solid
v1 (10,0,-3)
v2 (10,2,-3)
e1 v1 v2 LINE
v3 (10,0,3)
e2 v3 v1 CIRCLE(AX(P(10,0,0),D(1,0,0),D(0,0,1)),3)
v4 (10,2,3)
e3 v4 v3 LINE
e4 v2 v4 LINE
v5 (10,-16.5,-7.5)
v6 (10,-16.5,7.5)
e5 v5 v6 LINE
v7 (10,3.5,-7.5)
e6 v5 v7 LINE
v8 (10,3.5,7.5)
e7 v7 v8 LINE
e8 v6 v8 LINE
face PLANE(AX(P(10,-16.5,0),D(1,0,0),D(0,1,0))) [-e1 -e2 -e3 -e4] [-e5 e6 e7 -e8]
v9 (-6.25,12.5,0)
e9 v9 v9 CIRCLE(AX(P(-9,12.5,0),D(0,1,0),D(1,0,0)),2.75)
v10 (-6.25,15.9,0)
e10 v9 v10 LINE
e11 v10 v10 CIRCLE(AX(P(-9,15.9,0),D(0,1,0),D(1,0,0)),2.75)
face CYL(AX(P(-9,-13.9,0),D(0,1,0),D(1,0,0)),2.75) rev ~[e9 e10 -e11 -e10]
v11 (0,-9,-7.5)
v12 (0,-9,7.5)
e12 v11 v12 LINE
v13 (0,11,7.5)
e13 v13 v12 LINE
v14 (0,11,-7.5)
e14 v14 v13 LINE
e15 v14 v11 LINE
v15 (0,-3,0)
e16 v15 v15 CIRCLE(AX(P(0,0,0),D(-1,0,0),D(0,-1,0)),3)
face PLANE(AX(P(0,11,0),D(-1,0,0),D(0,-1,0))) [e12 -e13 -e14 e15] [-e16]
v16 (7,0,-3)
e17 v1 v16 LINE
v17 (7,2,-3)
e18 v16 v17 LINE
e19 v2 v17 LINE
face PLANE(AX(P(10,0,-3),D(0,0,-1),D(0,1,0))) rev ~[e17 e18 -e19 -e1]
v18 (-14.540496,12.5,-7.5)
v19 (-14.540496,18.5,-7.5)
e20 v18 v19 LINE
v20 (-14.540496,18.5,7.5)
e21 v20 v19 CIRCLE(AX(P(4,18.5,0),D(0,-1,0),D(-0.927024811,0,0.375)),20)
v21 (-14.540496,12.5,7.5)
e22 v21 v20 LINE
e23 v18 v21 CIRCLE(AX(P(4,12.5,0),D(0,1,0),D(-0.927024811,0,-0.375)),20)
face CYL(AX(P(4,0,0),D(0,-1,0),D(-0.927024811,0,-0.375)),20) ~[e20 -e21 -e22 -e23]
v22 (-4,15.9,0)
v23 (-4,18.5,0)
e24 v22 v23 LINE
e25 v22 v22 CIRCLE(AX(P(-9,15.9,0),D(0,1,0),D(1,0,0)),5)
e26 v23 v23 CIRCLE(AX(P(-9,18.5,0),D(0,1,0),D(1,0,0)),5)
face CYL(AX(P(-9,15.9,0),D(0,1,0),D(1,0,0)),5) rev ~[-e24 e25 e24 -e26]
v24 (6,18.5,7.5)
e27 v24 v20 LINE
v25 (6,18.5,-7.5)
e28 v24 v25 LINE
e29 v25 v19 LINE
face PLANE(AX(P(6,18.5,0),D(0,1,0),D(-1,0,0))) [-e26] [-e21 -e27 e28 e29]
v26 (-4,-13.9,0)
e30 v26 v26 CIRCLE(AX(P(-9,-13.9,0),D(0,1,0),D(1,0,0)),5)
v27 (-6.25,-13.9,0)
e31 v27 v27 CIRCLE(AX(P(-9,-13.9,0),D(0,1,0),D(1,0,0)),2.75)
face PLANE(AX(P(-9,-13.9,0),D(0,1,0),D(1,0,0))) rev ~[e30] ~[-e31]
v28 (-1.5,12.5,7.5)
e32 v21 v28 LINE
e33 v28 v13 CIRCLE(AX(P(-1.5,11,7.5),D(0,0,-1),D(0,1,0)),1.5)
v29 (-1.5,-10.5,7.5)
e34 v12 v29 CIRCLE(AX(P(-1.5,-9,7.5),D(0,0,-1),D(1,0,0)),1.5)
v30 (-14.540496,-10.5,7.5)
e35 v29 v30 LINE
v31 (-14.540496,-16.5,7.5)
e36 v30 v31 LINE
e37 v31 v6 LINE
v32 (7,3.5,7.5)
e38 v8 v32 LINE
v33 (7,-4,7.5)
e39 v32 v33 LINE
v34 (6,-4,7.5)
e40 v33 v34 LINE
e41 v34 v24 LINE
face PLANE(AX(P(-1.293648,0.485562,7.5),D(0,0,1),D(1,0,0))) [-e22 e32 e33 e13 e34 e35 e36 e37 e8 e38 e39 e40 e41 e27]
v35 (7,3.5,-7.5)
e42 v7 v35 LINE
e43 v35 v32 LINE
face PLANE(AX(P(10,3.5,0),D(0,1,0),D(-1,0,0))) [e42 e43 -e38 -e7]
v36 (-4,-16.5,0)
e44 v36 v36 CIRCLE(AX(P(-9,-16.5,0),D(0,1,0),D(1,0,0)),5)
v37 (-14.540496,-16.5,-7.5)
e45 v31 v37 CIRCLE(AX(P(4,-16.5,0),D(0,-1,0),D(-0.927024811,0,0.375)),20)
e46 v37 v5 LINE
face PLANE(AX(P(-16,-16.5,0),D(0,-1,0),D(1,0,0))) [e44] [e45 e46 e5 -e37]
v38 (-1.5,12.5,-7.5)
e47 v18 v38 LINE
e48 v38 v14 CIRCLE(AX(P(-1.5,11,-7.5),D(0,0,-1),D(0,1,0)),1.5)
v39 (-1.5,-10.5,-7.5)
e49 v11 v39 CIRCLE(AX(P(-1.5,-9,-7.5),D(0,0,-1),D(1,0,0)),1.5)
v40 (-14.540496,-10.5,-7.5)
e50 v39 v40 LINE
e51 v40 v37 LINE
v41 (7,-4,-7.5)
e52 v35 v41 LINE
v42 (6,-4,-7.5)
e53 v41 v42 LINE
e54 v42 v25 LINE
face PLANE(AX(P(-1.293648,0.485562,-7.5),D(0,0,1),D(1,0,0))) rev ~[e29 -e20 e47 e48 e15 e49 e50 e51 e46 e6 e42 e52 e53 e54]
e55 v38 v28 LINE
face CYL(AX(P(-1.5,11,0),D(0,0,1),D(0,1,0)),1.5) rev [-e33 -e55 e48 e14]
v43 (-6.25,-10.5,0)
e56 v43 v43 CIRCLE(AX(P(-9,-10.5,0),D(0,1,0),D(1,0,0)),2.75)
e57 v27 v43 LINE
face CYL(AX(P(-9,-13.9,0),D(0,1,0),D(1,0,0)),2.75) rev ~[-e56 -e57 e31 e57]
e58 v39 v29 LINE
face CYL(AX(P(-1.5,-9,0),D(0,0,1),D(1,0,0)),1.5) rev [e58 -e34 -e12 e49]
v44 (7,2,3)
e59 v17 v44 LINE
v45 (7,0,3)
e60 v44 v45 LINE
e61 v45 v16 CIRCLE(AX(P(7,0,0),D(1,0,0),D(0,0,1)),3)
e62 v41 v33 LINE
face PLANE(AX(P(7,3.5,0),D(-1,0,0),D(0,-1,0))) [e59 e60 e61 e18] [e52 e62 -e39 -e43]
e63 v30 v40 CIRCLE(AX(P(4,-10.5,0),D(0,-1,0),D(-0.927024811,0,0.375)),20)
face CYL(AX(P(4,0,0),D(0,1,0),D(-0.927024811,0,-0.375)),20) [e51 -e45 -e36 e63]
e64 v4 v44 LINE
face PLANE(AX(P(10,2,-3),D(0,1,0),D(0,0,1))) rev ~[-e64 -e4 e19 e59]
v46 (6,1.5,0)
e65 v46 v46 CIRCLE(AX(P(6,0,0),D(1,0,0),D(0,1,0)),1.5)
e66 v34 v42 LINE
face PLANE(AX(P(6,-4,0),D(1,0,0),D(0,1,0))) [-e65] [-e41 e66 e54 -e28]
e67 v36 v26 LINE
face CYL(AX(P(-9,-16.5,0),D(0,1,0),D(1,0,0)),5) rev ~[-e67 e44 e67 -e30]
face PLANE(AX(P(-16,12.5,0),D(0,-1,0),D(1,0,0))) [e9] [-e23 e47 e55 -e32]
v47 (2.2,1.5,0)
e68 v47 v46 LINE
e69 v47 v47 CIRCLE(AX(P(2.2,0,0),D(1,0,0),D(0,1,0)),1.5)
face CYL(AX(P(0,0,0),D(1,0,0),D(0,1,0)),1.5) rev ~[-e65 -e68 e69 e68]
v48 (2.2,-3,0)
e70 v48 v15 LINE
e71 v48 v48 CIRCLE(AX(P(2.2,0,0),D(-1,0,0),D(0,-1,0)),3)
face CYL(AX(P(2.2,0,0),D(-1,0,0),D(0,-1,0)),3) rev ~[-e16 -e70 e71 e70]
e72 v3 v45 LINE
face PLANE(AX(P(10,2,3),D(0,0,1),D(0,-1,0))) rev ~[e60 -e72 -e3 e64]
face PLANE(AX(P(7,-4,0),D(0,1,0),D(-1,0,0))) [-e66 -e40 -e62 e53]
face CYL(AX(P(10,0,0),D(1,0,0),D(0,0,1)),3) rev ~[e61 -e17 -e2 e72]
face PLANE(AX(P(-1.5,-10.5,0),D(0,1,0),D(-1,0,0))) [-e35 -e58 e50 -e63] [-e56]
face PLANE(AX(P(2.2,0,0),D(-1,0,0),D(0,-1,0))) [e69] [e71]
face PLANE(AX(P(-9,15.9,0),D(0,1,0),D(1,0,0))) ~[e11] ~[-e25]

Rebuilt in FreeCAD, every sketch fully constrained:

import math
import FreeCAD as App
import Part
import Sketcher

V = App.Vector


def add_polygon(sketch, points):
    """Adds a closed chain of lines whose ends are joined by coincident constraints."""
    first, n = sketch.GeometryCount, len(points)
    for a, b in zip(points, points[1:] + points[:1]):
        sketch.addGeometry(Part.LineSegment(App.Vector(*a, 0), App.Vector(*b, 0)), False)
    for i in range(n):
        sketch.addConstraint(Sketcher.Constraint("Coincident", first + i, 2, first + (i + 1) % n, 1))

doc = App.newDocument("Part")
body = doc.addObject("PartDesign::Body", "Body")

# Sketch on XY plane
sketch1 = body.newObject("Sketcher::SketchObject", "Sketch")
sketch1.AttachmentSupport = (doc.getObject("XY_Plane"), [""])
sketch1.MapMode = "FlatFace"
sketch1.addGeometry([
    Part.LineSegment(V(-16, 18.5, 0), V(-16, 12.5, 0)),  # 0
    Part.LineSegment(V(-16, 12.5, 0), V(-1.5, 12.5, 0)),  # 1
    Part.ArcOfCircle(Part.Circle(V(-1.5, 11, 0), V(0, 0, 1), 1.5), math.radians(0), math.radians(90)),  # 2
    Part.LineSegment(V(0, 11, 0), V(0, -9, 0)),  # 3
    Part.ArcOfCircle(Part.Circle(V(-1.5, -9, 0), V(0, 0, 1), 1.5), math.radians(-90), math.radians(0)),  # 4
    Part.LineSegment(V(-1.5, -10.5, 0), V(-16, -10.5, 0)),  # 5
    Part.LineSegment(V(-16, -10.5, 0), V(-16, -16.5, 0)),  # 6
    Part.LineSegment(V(-16, -16.5, 0), V(10, -16.5, 0)),  # 7
    Part.LineSegment(V(10, -16.5, 0), V(10, 3.5, 0)),  # 8
    Part.LineSegment(V(10, 3.5, 0), V(7, 3.5, 0)),  # 9
    Part.LineSegment(V(7, 3.5, 0), V(7, -4, 0)),  # 10
    Part.LineSegment(V(7, -4, 0), V(6, -4, 0)),  # 11
    Part.LineSegment(V(6, -4, 0), V(6, 18.5, 0)),  # 12
    Part.LineSegment(V(6, 18.5, 0), V(-16, 18.5, 0)),  # 13
], False)
sketch1.addConstraint([
    Sketcher.Constraint("Coincident", 0, 2, 1, 1),
    Sketcher.Constraint("Tangent", 1, 2, 2, 2),
    Sketcher.Constraint("Tangent", 2, 1, 3, 1),
    Sketcher.Constraint("Tangent", 3, 2, 4, 2),
    Sketcher.Constraint("Tangent", 4, 1, 5, 1),
    Sketcher.Constraint("Coincident", 5, 2, 6, 1),
    Sketcher.Constraint("Coincident", 6, 2, 7, 1),
    Sketcher.Constraint("Coincident", 7, 2, 8, 1),
    Sketcher.Constraint("Coincident", 8, 2, 9, 1),
    Sketcher.Constraint("Coincident", 9, 2, 10, 1),
    Sketcher.Constraint("Coincident", 10, 2, 11, 1),
    Sketcher.Constraint("Coincident", 11, 2, 12, 1),
    Sketcher.Constraint("Coincident", 12, 2, 13, 1),
    Sketcher.Constraint("Coincident", 13, 2, 0, 1),
    Sketcher.Constraint("Vertical", 0),
    Sketcher.Constraint("Horizontal", 1),
    Sketcher.Constraint("Vertical", 3),
    Sketcher.Constraint("Horizontal", 5),
    Sketcher.Constraint("Vertical", 6),
    Sketcher.Constraint("Horizontal", 7),
    Sketcher.Constraint("Vertical", 8),
    Sketcher.Constraint("Horizontal", 9),
    Sketcher.Constraint("Vertical", 10),
    Sketcher.Constraint("Horizontal", 11),
    Sketcher.Constraint("Vertical", 12),
    Sketcher.Constraint("Horizontal", 13),
    Sketcher.Constraint("Equal", 2, 4),
    Sketcher.Constraint("PointOnObject", 2, 1, -2),
    Sketcher.Constraint("Vertical", 0, 2, 5, 2),
    Sketcher.Constraint("Equal", 0, 6),
    Sketcher.Constraint("Equal", 3, 8),
    Sketcher.Constraint("Radius", 2, 1.5),
    Sketcher.Constraint("DistanceX", 7, 1, 7, 2, 26.0),
    Sketcher.Constraint("DistanceX", 9, 2, 9, 1, 3.0),
    Sketcher.Constraint("DistanceX", 11, 2, 11, 1, 1.0),
    Sketcher.Constraint("DistanceY", 0, 2, 0, 1, 6.0),
    Sketcher.Constraint("DistanceY", 3, 2, 3, 1, 20.0),
    Sketcher.Constraint("DistanceX", 1, 1, 1, 2, 14.5),
    Sketcher.Constraint("DistanceY", 10, 2, 10, 1, 7.5),
    Sketcher.Constraint("DistanceY", -1, 1, 2, 3, 11.0),
])
pad1 = body.newObject("PartDesign::Pad", "Pad")
pad1.Profile = sketch1
pad1.Length = 15
pad1.Midplane = True

# Sketch on YZ plane
sketch2 = body.newObject("Sketcher::SketchObject", "Sketch001")
sketch2.AttachmentSupport = (doc.getObject("YZ_Plane"), [""])
sketch2.MapMode = "FlatFace"
sketch2.addGeometry(Part.Circle(V(0, 0, 0), V(0, 0, 1), 1.5), False)
sketch2.addConstraint([
    Sketcher.Constraint("Coincident", 0, 3, -1, 1),
    Sketcher.Constraint("Diameter", 0, 3.0),
])
doc.recompute()
hole = body.newObject("PartDesign::Hole", "Hole")
hole.Profile = sketch2
hole.ThreadType = "None"
hole.Diameter = 3
hole.DepthType = "ThroughAll"
hole.HoleCutType = "Counterbore"
hole.HoleCutDiameter = 6
hole.HoleCutDepth = 2.2
hole.Reversed = True

# Sketch on YZ plane
sketch3 = body.newObject("Sketcher::SketchObject", "Sketch002")
sketch3.AttachmentSupport = (doc.getObject("YZ_Plane"), [""])
sketch3.MapMode = "FlatFace"
sketch3.AttachmentOffset = App.Placement(V(0, 0, 10), App.Rotation())
sketch3.addGeometry([
    Part.LineSegment(V(2, 3, 0), V(0, 3, 0)),
    Part.ArcOfCircle(Part.Circle(V(0, 0, 0), V(0, 0, 1), 3), math.radians(90), math.radians(270)),
    Part.LineSegment(V(0, -3, 0), V(2, -3, 0)),
    Part.LineSegment(V(2, -3, 0), V(2, 3, 0)),
], False)
sketch3.addConstraint([
    Sketcher.Constraint("Tangent", 0, 2, 1, 1),
    Sketcher.Constraint("Tangent", 1, 2, 2, 1),
    Sketcher.Constraint("Coincident", 2, 2, 3, 1),
    Sketcher.Constraint("Coincident", 3, 2, 0, 1),
    Sketcher.Constraint("Horizontal", 0),
    Sketcher.Constraint("Horizontal", 2),
    Sketcher.Constraint("Vertical", 3),
    Sketcher.Constraint("Coincident", 1, 3, -1, 1),
    Sketcher.Constraint("Radius", 1, 3.0),
    Sketcher.Constraint("DistanceX", 0, 2, 0, 1, 2.0),
])
pocket1 = body.newObject("PartDesign::Pocket", "Pocket")
pocket1.Profile = sketch3
pocket1.Length = 3

# Sketch on XY plane
sketch4 = body.newObject("Sketcher::SketchObject", "Sketch003")
sketch4.AttachmentSupport = (doc.getObject("XY_Plane"), [""])
sketch4.MapMode = "FlatFace"
add_polygon(sketch4, [(-9, -16.5), (-4, -16.5), (-4, -13.9), (-6.2, -13.9), (-6.2, 15.9), (-4, 15.9), (-4, 18.5), (-9, 18.5)])  # lines 0-7
sketch4.addGeometry(Part.LineSegment(V(-9, -16.5, 0), V(-9, 18.5, 0)), True)  # axis
sketch4.addConstraint([
    Sketcher.Constraint("Horizontal", 0),
    Sketcher.Constraint("Vertical", 1),
    Sketcher.Constraint("Horizontal", 2),
    Sketcher.Constraint("Vertical", 3),
    Sketcher.Constraint("Horizontal", 4),
    Sketcher.Constraint("Vertical", 5),
    Sketcher.Constraint("Horizontal", 6),
    Sketcher.Constraint("Vertical", 7),
    Sketcher.Constraint("Vertical", 8),
    Sketcher.Constraint("Coincident", 8, 1, 7, 2),
    Sketcher.Constraint("Horizontal", 5, 2, 8, 2),
    Sketcher.Constraint("Vertical", 1, 2, 4, 2),
    Sketcher.Constraint("Equal", 1, 5),
    Sketcher.Constraint("DistanceX", 0, 1, 0, 2, 5.0),
    Sketcher.Constraint("DistanceY", 7, 2, 7, 1, 35.0),
    Sketcher.Constraint("DistanceY", 1, 1, 1, 2, 2.6),
    Sketcher.Constraint("DistanceX", 0, 2, -1, 1, 4.0),
    Sketcher.Constraint("DistanceX", 2, 2, 2, 1, 2.25),
    Sketcher.Constraint("DistanceY", 0, 2, -1, 1, 16.5),
])
groove = body.newObject("PartDesign::Groove", "Groove")
groove.Profile = sketch4
groove.ReferenceAxis = (sketch4, ["Axis0"])
groove.Angle = 360

# Sketch on XZ plane
sketch5 = body.newObject("Sketcher::SketchObject", "Sketch004")
sketch5.AttachmentSupport = (doc.getObject("XZ_Plane"), [""])
sketch5.MapMode = "FlatFace"
sketch5.addGeometry([
    Part.ArcOfCircle(Part.Circle(V(4, 0, 0), V(0, 0, 1), 20), math.radians(158), math.radians(202)),
    Part.LineSegment(V(-14.5, 7.5, 0), V(-17.3, 7.5, 0)),
    Part.LineSegment(V(-17.3, 7.5, 0), V(-17.3, -7.5, 0)),
    Part.LineSegment(V(-17.3, -7.5, 0), V(-14.5, -7.5, 0)),
], False)
sketch5.addConstraint([
    Sketcher.Constraint("Coincident", 0, 1, 1, 1),
    Sketcher.Constraint("Coincident", 1, 2, 2, 1),
    Sketcher.Constraint("Coincident", 2, 2, 3, 1),
    Sketcher.Constraint("Coincident", 3, 2, 0, 2),
    Sketcher.Constraint("Horizontal", 1),
    Sketcher.Constraint("Vertical", 2),
    Sketcher.Constraint("Horizontal", 3),
    Sketcher.Constraint("Symmetric", 0, 1, 3, 2, -1),
    Sketcher.Constraint("Radius", 0, 20.0),
    Sketcher.Constraint("DistanceY", 2, 2, 2, 1, 15.0),
    Sketcher.Constraint("DistanceX", -1, 1, 0, 3, 4.0),
    Sketcher.Constraint("DistanceX", 1, 2, -1, 1, 17.27),
])
pocket2 = body.newObject("PartDesign::Pocket", "Pocket001")
pocket2.Profile = sketch5
pocket2.Type = "ThroughAll"
pocket2.Midplane = True

doc.recompute()
